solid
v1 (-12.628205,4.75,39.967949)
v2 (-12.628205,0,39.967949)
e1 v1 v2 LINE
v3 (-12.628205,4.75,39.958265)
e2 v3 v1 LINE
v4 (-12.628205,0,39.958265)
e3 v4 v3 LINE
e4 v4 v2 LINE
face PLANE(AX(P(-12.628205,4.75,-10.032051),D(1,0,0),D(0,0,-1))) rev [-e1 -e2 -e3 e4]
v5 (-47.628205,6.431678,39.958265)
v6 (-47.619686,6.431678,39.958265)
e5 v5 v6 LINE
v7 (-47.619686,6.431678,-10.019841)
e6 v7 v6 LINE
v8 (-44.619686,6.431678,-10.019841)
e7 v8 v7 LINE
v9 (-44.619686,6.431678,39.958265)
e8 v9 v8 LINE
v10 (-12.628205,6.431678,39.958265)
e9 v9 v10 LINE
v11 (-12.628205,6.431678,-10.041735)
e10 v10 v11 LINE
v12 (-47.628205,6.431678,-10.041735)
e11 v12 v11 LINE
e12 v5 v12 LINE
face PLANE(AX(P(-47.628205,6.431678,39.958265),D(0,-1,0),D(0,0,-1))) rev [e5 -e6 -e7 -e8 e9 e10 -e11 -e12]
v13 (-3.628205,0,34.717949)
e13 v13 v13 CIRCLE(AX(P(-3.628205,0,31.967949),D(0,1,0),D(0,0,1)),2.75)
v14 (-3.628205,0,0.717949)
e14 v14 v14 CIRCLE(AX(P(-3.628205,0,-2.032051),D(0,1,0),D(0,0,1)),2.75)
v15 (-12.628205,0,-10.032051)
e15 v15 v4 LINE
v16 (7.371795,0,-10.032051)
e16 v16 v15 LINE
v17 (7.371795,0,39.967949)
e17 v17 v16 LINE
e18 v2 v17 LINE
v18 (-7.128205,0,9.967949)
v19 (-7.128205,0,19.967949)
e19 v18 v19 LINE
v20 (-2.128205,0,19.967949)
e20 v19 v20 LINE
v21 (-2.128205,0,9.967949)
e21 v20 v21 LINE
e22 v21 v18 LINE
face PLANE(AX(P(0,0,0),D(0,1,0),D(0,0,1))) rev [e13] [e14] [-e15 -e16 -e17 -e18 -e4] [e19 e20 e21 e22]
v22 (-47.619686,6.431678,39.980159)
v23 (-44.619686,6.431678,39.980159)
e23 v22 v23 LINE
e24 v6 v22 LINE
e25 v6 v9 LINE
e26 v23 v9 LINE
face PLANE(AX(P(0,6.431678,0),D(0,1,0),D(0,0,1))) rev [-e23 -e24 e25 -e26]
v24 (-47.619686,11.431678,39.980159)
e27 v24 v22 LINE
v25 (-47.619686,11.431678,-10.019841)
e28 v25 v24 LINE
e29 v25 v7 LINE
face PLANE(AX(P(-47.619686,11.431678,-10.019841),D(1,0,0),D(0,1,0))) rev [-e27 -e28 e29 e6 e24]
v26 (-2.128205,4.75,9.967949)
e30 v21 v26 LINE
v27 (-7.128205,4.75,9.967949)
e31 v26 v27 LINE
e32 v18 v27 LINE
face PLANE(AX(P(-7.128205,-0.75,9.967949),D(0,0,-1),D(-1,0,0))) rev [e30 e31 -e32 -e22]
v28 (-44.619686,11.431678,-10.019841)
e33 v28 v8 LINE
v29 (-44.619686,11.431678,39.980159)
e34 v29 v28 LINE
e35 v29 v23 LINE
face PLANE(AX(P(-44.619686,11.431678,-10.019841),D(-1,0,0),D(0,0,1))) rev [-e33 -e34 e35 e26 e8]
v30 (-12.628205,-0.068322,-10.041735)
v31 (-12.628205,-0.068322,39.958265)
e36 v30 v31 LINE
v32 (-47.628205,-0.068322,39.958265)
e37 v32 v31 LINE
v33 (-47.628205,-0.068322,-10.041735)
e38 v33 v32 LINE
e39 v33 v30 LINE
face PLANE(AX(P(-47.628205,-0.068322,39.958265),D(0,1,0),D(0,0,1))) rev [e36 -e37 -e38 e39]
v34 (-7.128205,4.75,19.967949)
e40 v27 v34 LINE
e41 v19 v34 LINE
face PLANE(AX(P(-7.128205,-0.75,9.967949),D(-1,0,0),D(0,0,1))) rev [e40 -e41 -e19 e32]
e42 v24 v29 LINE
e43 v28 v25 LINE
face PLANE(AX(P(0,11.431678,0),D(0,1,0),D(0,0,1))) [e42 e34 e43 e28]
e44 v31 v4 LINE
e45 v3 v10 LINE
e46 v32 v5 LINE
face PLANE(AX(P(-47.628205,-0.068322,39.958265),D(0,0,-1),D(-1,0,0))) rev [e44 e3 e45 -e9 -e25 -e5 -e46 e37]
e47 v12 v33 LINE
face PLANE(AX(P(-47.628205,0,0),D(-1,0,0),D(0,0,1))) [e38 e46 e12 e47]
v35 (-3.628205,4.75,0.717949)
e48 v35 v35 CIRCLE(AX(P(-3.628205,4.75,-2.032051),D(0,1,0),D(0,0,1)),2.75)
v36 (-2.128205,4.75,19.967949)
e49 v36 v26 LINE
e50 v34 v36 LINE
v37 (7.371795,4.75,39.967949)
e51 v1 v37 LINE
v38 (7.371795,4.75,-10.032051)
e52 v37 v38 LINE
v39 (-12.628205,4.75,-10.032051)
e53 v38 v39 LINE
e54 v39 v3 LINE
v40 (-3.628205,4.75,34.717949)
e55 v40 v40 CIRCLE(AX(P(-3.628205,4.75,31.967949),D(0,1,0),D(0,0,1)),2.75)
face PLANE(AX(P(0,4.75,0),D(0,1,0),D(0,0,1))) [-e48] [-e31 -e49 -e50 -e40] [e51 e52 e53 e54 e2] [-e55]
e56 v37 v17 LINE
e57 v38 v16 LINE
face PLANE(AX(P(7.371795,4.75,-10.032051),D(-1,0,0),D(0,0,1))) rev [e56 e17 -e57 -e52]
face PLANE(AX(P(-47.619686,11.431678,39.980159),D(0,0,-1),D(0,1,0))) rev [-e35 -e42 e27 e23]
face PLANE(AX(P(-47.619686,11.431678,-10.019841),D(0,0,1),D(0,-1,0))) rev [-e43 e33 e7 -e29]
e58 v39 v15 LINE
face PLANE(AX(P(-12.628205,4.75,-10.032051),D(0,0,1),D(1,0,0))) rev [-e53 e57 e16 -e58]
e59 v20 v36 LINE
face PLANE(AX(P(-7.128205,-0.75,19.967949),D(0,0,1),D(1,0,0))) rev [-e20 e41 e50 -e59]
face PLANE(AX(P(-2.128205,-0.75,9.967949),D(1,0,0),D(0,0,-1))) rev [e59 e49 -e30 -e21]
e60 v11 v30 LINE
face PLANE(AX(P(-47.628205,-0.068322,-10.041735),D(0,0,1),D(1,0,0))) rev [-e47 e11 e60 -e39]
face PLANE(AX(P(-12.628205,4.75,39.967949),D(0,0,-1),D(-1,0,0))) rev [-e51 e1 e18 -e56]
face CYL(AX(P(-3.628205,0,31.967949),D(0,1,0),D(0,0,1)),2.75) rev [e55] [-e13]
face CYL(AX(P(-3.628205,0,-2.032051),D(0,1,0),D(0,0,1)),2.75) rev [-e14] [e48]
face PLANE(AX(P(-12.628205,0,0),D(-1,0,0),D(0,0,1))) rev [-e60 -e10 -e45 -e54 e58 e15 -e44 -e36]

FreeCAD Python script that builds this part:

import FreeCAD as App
import Part
import Sketcher
from FreeCAD import Vector


def add_polygon(sketch, points):
    """Adds a closed chain of lines whose ends are joined by coincident constraints."""
    first, n = sketch.GeometryCount, len(points)
    for a, b in zip(points, points[1:] + points[:1]):
        sketch.addGeometry(Part.LineSegment(App.Vector(*a, 0), App.Vector(*b, 0)), False)
    for i in range(n):
        sketch.addConstraint(Sketcher.Constraint("Coincident", first + i, 2, first + (i + 1) % n, 1))

doc = App.newDocument("Part")
body = doc.addObject("PartDesign::Body", "Body")

# Sketch on XZ plane
sketch1 = body.newObject("Sketcher::SketchObject", "Sketch")
sketch1.AttachmentSupport = (doc.getObject("XZ_Plane"), [""])
sketch1.MapMode = "FlatFace"
add_polygon(sketch1, [(-13, -10), (-13, 40), (7, 40), (7, -10)])  # lines 0-3
sketch1.addConstraint(Sketcher.Constraint("Vertical", 0))
sketch1.addConstraint(Sketcher.Constraint("Horizontal", 1))
sketch1.addConstraint(Sketcher.Constraint("Vertical", 2))
sketch1.addConstraint(Sketcher.Constraint("Horizontal", 3))
sketch1.addConstraint(Sketcher.Constraint("DistanceX", 1, 1, 1, 2, 20.0))
sketch1.addConstraint(Sketcher.Constraint("DistanceY", 0, 1, 0, 2, 50.0))
sketch1.addConstraint(Sketcher.Constraint("DistanceY", -1, 1, 0, 2, 39.967949))
sketch1.addConstraint(Sketcher.Constraint("DistanceX", 0, 2, -1, 1, 12.628205))
pad1 = body.newObject("PartDesign::Pad", "Pad")
pad1.Profile = sketch1
pad1.Length = 4.75
pad1.Reversed = True

# Sketch on XZ plane
sketch2 = body.newObject("Sketcher::SketchObject", "Sketch001")
sketch2.AttachmentSupport = (doc.getObject("XZ_Plane"), [""])
sketch2.MapMode = "FlatFace"
sketch2.AttachmentOffset = App.Placement(Vector(0, 0, -4.75), App.Rotation())
sketch2.addGeometry(Part.Circle(Vector(-3.6, -2, 0), Vector(0, 0, 1), 2.8), False)
sketch2.addGeometry(Part.Circle(Vector(-3.6, 32, 0), Vector(0, 0, 1), 2.8), False)
sketch2.addConstraint(Sketcher.Constraint("Equal", 0, 1))
sketch2.addConstraint(Sketcher.Constraint("Vertical", 0, 3, 1, 3))
sketch2.addConstraint(Sketcher.Constraint("Diameter", 0, 5.5))
sketch2.addConstraint(Sketcher.Constraint("DistanceY", 0, 3, 1, 3, 34.0))
sketch2.addConstraint(Sketcher.Constraint("DistanceY", 0, 3, -1, 1, 2.032051))
sketch2.addConstraint(Sketcher.Constraint("DistanceX", 0, 3, -1, 1, 3.628205))
pocket1 = body.newObject("PartDesign::Pocket", "Pocket")
pocket1.Profile = sketch2
pocket1.Type = "ThroughAll"
pocket1.Reversed = True

# Sketch on YZ plane
sketch3 = body.newObject("Sketcher::SketchObject", "Sketch002")
sketch3.AttachmentSupport = (doc.getObject("YZ_Plane"), [""])
sketch3.MapMode = "FlatFace"
sketch3.AttachmentOffset = App.Placement(Vector(0, 0, -12.628205), App.Rotation())
add_polygon(sketch3, [(6, -10), (0, -10), (0, 40), (6, 40)])  # lines 0-3
sketch3.addConstraint(Sketcher.Constraint("Horizontal", 0))
sketch3.addConstraint(Sketcher.Constraint("Vertical", 1))
sketch3.addConstraint(Sketcher.Constraint("Horizontal", 2))
sketch3.addConstraint(Sketcher.Constraint("Vertical", 3))
sketch3.addConstraint(Sketcher.Constraint("DistanceY", 1, 1, 1, 2, 50.0))
sketch3.addConstraint(Sketcher.Constraint("DistanceX", 0, 2, 0, 1, 6.5))
sketch3.addConstraint(Sketcher.Constraint("DistanceX", 0, 2, -1, 1, 0.068322))
sketch3.addConstraint(Sketcher.Constraint("DistanceY", 0, 2, -1, 1, 10.041735))
pad2 = body.newObject("PartDesign::Pad", "Pad001")
pad2.Profile = sketch3
pad2.Length = 35
pad2.Reversed = True

# Sketch on XZ plane
sketch4 = body.newObject("Sketcher::SketchObject", "Sketch003")
sketch4.AttachmentSupport = (doc.getObject("XZ_Plane"), [""])
sketch4.MapMode = "FlatFace"
sketch4.AttachmentOffset = App.Placement(Vector(0, 0, -6.431678), App.Rotation())
add_polygon(sketch4, [(-47.6, -10), (-47.6, 40), (-44.6, 40), (-44.6, -10)])  # lines 0-3
sketch4.addConstraint(Sketcher.Constraint("Vertical", 0))
sketch4.addConstraint(Sketcher.Constraint("Horizontal", 1))
sketch4.addConstraint(Sketcher.Constraint("Vertical", 2))
sketch4.addConstraint(Sketcher.Constraint("Horizontal", 3))
sketch4.addConstraint(Sketcher.Constraint("DistanceX", 1, 1, 1, 2, 3.0))
sketch4.addConstraint(Sketcher.Constraint("DistanceY", 0, 1, 0, 2, 50.0))
sketch4.addConstraint(Sketcher.Constraint("DistanceY", -1, 1, 0, 2, 39.980159))
sketch4.addConstraint(Sketcher.Constraint("DistanceX", 0, 2, -1, 1, 47.619686))
pad3 = body.newObject("PartDesign::Pad", "Pad002")
pad3.Profile = sketch4
pad3.Length = 5
pad3.Reversed = True

# Sketch on XZ plane
sketch5 = body.newObject("Sketcher::SketchObject", "Sketch004")
sketch5.AttachmentSupport = (doc.getObject("XZ_Plane"), [""])
sketch5.MapMode = "FlatFace"
sketch5.AttachmentOffset = App.Placement(Vector(0, 0, -4.75), App.Rotation())
add_polygon(sketch5, [(-7, 10), (-7, 20), (-2, 20), (-2, 10)])  # lines 0-3
sketch5.addConstraint(Sketcher.Constraint("Vertical", 0))
sketch5.addConstraint(Sketcher.Constraint("Horizontal", 1))
sketch5.addConstraint(Sketcher.Constraint("Vertical", 2))
sketch5.addConstraint(Sketcher.Constraint("Horizontal", 3))
sketch5.addConstraint(Sketcher.Constraint("DistanceX", 1, 1, 1, 2, 5.0))
sketch5.addConstraint(Sketcher.Constraint("DistanceY", 0, 1, 0, 2, 10.0))
sketch5.addConstraint(Sketcher.Constraint("DistanceY", -1, 1, 0, 2, 19.967949))
sketch5.addConstraint(Sketcher.Constraint("DistanceX", 0, 2, -1, 1, 7.128205))
pocket2 = body.newObject("PartDesign::Pocket", "Pocket001")
pocket2.Profile = sketch5
pocket2.Length = 5.5
pocket2.Reversed = True

doc.recompute()
